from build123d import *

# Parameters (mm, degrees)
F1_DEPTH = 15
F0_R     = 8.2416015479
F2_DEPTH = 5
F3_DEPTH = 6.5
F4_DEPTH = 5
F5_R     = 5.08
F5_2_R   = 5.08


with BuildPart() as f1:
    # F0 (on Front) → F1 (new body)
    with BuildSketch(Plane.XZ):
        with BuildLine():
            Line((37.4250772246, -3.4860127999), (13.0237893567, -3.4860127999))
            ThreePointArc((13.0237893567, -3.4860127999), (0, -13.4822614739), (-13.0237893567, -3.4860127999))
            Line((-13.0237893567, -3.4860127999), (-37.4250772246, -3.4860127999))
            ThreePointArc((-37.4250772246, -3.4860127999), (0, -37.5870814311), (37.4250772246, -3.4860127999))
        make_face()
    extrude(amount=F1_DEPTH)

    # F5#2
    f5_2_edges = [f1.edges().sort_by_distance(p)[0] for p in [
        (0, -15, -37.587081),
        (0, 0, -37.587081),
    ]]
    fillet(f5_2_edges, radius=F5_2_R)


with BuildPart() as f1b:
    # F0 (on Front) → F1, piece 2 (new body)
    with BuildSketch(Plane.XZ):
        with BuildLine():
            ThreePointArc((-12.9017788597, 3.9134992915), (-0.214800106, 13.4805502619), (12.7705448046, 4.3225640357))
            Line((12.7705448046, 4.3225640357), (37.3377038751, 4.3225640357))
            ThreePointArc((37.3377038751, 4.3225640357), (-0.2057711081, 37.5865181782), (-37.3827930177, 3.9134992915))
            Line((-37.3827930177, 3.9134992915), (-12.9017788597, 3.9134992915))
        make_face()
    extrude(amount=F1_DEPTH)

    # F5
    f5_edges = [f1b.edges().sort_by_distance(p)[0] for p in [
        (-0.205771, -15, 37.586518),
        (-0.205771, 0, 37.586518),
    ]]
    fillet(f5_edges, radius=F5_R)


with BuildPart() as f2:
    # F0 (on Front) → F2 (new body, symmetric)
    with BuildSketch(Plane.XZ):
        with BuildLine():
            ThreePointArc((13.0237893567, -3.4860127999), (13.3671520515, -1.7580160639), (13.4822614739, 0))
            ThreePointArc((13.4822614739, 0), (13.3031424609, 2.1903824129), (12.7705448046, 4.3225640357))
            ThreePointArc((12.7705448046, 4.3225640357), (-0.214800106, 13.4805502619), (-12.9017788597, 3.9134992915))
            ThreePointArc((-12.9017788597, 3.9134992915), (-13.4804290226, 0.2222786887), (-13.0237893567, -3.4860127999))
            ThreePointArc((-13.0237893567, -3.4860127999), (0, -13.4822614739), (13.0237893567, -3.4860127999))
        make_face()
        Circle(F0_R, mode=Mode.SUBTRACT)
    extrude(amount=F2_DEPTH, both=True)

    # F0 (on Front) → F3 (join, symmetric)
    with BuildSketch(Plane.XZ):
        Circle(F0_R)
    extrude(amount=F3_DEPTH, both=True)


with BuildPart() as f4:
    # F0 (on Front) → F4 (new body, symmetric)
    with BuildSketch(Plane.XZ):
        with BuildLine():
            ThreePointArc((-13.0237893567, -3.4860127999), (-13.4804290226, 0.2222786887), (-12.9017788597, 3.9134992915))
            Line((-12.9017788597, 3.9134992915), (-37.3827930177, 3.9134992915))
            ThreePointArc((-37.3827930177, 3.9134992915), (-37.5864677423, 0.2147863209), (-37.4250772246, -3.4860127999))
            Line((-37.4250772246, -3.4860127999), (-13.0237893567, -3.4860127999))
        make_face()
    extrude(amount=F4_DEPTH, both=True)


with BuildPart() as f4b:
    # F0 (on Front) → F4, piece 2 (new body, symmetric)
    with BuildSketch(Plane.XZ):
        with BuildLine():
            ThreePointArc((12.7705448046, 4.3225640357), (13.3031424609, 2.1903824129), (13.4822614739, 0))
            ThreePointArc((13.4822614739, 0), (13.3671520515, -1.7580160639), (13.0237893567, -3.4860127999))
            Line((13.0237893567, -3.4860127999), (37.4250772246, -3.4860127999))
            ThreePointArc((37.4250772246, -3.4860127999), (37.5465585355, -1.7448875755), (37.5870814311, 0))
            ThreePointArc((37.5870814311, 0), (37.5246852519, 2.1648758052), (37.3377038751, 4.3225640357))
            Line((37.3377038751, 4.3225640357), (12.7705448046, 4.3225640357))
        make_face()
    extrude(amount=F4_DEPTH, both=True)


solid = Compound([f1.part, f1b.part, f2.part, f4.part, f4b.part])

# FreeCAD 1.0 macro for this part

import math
import FreeCAD as App
import Part
import Sketcher
from FreeCAD import Vector


def edges_at(feature, points):
    """Names of the edges that pass closest to the given points."""
    edges = feature.Shape.Edges
    near = lambda p: min(range(len(edges)), key=lambda i: edges[i].distToShape(Part.Vertex(*p))[0])
    return sorted({f"Edge{near(p) + 1}" for p in points})

doc = App.newDocument("Part")
body = doc.addObject("PartDesign::Body", "Body")

# Sketch on XZ plane
sketch1 = body.newObject("Sketcher::SketchObject", "Sketch")
sketch1.AttachmentSupport = (doc.getObject("XZ_Plane"), [""])
sketch1.MapMode = "FlatFace"
sketch1.addGeometry(Part.LineSegment(Vector(37, -3, 0), Vector(13, -3, 0)), False)
sketch1.addGeometry(Part.ArcOfCircle(Part.Circle(Vector(0, 0, 0), Vector(0, 0, 1), 13), math.radians(-165), math.radians(-15)), False)
sketch1.addGeometry(Part.LineSegment(Vector(-13, -3, 0), Vector(-37, -3, 0)), False)
sketch1.addGeometry(Part.ArcOfCircle(Part.Circle(Vector(0, 0, 0), Vector(0, 0, 1), 38), math.radians(-175), math.radians(-5)), False)
sketch1.addConstraint(Sketcher.Constraint("Coincident", 0, 2, 1, 2))
sketch1.addConstraint(Sketcher.Constraint("Coincident", 1, 1, 2, 1))
sketch1.addConstraint(Sketcher.Constraint("Coincident", 2, 2, 3, 1))
sketch1.addConstraint(Sketcher.Constraint("Coincident", 3, 2, 0, 1))
sketch1.addConstraint(Sketcher.Constraint("Horizontal", 0))
sketch1.addConstraint(Sketcher.Constraint("Horizontal", 2))
sketch1.addConstraint(Sketcher.Constraint("Coincident", 1, 3, -1, 1))
sketch1.addConstraint(Sketcher.Constraint("Coincident", 3, 3, -1, 1))
sketch1.addConstraint(Sketcher.Constraint("Horizontal", 0, 2, 1, 1))
sketch1.addConstraint(Sketcher.Constraint("Radius", 1, 13.482261))
sketch1.addConstraint(Sketcher.Constraint("Radius", 3, 37.587081))
sketch1.addConstraint(Sketcher.Constraint("DistanceX", 0, 2, 0, 1, 24.401288))
pad1 = body.newObject("PartDesign::Pad", "Pad")
pad1.Profile = sketch1
pad1.Length = 15
doc.recompute()

fillet = body.newObject("PartDesign::Fillet", "Fillet")
fillet.Base = (pad1, edges_at(pad1, [(0, -15, -37.587), (0, 0, -37.587)]))
fillet.Radius = 5.08
body2 = doc.addObject("PartDesign::Body", "Body001")

# Sketch on XZ plane
sketch2 = body2.newObject("Sketcher::SketchObject", "Sketch001")
sketch2.AttachmentSupport = (doc.getObject("XZ_Plane001"), [""])
sketch2.MapMode = "FlatFace"
sketch2.addGeometry(Part.ArcOfCircle(Part.Circle(Vector(0, 0, 0), Vector(0, 0, 1), 13), math.radians(19), math.radians(163)), False)
sketch2.addGeometry(Part.LineSegment(Vector(13, 4, 0), Vector(37, 4, 0)), False)
sketch2.addGeometry(Part.ArcOfCircle(Part.Circle(Vector(0, 0, 0), Vector(0, 0, 1), 38), math.radians(7), math.radians(174)), False)
sketch2.addGeometry(Part.LineSegment(Vector(-37, 4, 0), Vector(-13, 4, 0)), False)
sketch2.addConstraint(Sketcher.Constraint("Coincident", 0, 1, 1, 1))
sketch2.addConstraint(Sketcher.Constraint("Coincident", 1, 2, 2, 1))
sketch2.addConstraint(Sketcher.Constraint("Coincident", 2, 2, 3, 1))
sketch2.addConstraint(Sketcher.Constraint("Coincident", 3, 2, 0, 2))
sketch2.addConstraint(Sketcher.Constraint("Horizontal", 1))
sketch2.addConstraint(Sketcher.Constraint("Horizontal", 3))
sketch2.addConstraint(Sketcher.Constraint("Coincident", 0, 3, -1, 1))
sketch2.addConstraint(Sketcher.Constraint("Coincident", 2, 3, -1, 1))
sketch2.addConstraint(Sketcher.Constraint("Radius", 0, 13.482261))
sketch2.addConstraint(Sketcher.Constraint("Radius", 2, 37.587081))
sketch2.addConstraint(Sketcher.Constraint("DistanceX", 1, 1, 1, 2, 24.567159))
sketch2.addConstraint(Sketcher.Constraint("DistanceY", -1, 1, 2, 2, 3.913499))
pad2 = body2.newObject("PartDesign::Pad", "Pad001")
pad2.Profile = sketch2
pad2.Length = 15
doc.recompute()

fillet2 = body2.newObject("PartDesign::Fillet", "Fillet001")
fillet2.Base = (pad2, edges_at(pad2, [(-0.206, -15, 37.587), (-0.206, 0, 37.587)]))
fillet2.Radius = 5.08
body3 = doc.addObject("PartDesign::Body", "Body002")

# Sketch on XZ plane
sketch3 = body3.newObject("Sketcher::SketchObject", "Sketch002")
sketch3.AttachmentSupport = (doc.getObject("XZ_Plane002"), [""])
sketch3.MapMode = "FlatFace"
sketch3.addGeometry(Part.ArcOfCircle(Part.Circle(Vector(0, 0, 0), Vector(0, 0, 1), 13.5), math.radians(-14.98), math.radians(0)), False)
sketch3.addGeometry(Part.ArcOfCircle(Part.Circle(Vector(0, 0, 0), Vector(0, 0, 1), 13.5), math.radians(0), math.radians(18.7)), False)
sketch3.addGeometry(Part.ArcOfCircle(Part.Circle(Vector(0, 0, 0), Vector(0, 0, 1), 13.5), math.radians(19), math.radians(163)), False)
sketch3.addGeometry(Part.ArcOfCircle(Part.Circle(Vector(0, 0, 0), Vector(0, 0, 1), 13.5), math.radians(163), math.radians(195)), False)
sketch3.addGeometry(Part.ArcOfCircle(Part.Circle(Vector(0, 0, 0), Vector(0, 0, 1), 13.5), math.radians(-165), math.radians(-15)), False)
sketch3.addGeometry(Part.Circle(Vector(0, 0, 0), Vector(0, 0, 1), 8.2), False)
sketch3.addConstraint(Sketcher.Constraint("Tangent", 0, 2, 1, 1))
sketch3.addConstraint(Sketcher.Constraint("Tangent", 1, 2, 2, 1))
sketch3.addConstraint(Sketcher.Constraint("Tangent", 2, 2, 3, 1))
sketch3.addConstraint(Sketcher.Constraint("Tangent", 3, 2, 4, 1))
sketch3.addConstraint(Sketcher.Constraint("Tangent", 4, 2, 0, 1))
sketch3.addConstraint(Sketcher.Constraint("Coincident", 0, 3, -1, 1))
sketch3.addConstraint(Sketcher.Constraint("Coincident", 2, 3, -1, 1))
sketch3.addConstraint(Sketcher.Constraint("Coincident", 5, 3, -1, 1))
sketch3.addConstraint(Sketcher.Constraint("PointOnObject", 0, 2, -1))
sketch3.addConstraint(Sketcher.Constraint("Horizontal", 3, 2, 4, 2))
sketch3.addConstraint(Sketcher.Constraint("Radius", 0, 13.482261))
sketch3.addConstraint(Sketcher.Constraint("Diameter", 5, 16.483203))
sketch3.addConstraint(Sketcher.Constraint("DistanceY", -1, 1, 2, 2, 3.913499))
sketch3.addConstraint(Sketcher.Constraint("DistanceX", 3, 2, -1, 1, 13.023789))
sketch3.addConstraint(Sketcher.Constraint("DistanceX", -1, 1, 1, 2, 12.770545))
pad3 = body3.newObject("PartDesign::Pad", "Pad002")
pad3.Profile = sketch3
pad3.Length = 10
pad3.Midplane = True

# Sketch on XZ plane
sketch4 = body3.newObject("Sketcher::SketchObject", "Sketch003")
sketch4.AttachmentSupport = (doc.getObject("XZ_Plane002"), [""])
sketch4.MapMode = "FlatFace"
sketch4.addGeometry(Part.Circle(Vector(0, 0, 0), Vector(0, 0, 1), 8), False)
sketch4.addConstraint(Sketcher.Constraint("Coincident", 0, 3, -1, 1))
sketch4.addConstraint(Sketcher.Constraint("Diameter", 0, 16.483203))
pad4 = body3.newObject("PartDesign::Pad", "Pad003")
pad4.Profile = sketch4
pad4.Length = 13
pad4.Midplane = True
body4 = doc.addObject("PartDesign::Body", "Body003")

# Sketch on XZ plane
sketch5 = body4.newObject("Sketcher::SketchObject", "Sketch004")
sketch5.AttachmentSupport = (doc.getObject("XZ_Plane003"), [""])
sketch5.MapMode = "FlatFace"
sketch5.addGeometry(Part.ArcOfCircle(Part.Circle(Vector(0, 0, 0), Vector(0, 0, 1), 13), math.radians(163), math.radians(195)), False)
sketch5.addGeometry(Part.LineSegment(Vector(-13, 4, 0), Vector(-37, 4, 0)), False)
sketch5.addGeometry(Part.ArcOfCircle(Part.Circle(Vector(0, 0, 0), Vector(0, 0, 1), 38), math.radians(174.02), math.radians(185.32)), False)
sketch5.addGeometry(Part.LineSegment(Vector(-37, -3, 0), Vector(-13, -3, 0)), False)
sketch5.addConstraint(Sketcher.Constraint("Coincident", 0, 1, 1, 1))
sketch5.addConstraint(Sketcher.Constraint("Coincident", 1, 2, 2, 1))
sketch5.addConstraint(Sketcher.Constraint("Coincident", 2, 2, 3, 1))
sketch5.addConstraint(Sketcher.Constraint("Coincident", 3, 2, 0, 2))
sketch5.addConstraint(Sketcher.Constraint("Horizontal", 1))
sketch5.addConstraint(Sketcher.Constraint("Horizontal", 3))
sketch5.addConstraint(Sketcher.Constraint("Coincident", 0, 3, -1, 1))
sketch5.addConstraint(Sketcher.Constraint("Coincident", 2, 3, -1, 1))
sketch5.addConstraint(Sketcher.Constraint("Radius", 0, 13.482261))
sketch5.addConstraint(Sketcher.Constraint("Radius", 2, 37.587081))
sketch5.addConstraint(Sketcher.Constraint("DistanceY", -1, 1, 0, 1, 3.913499))
sketch5.addConstraint(Sketcher.Constraint("DistanceX", 2, 2, 0, 1, 24.523298))
pad5 = body4.newObject("PartDesign::Pad", "Pad004")
pad5.Profile = sketch5
pad5.Length = 10
pad5.Midplane = True
body5 = doc.addObject("PartDesign::Body", "Body004")

# Sketch on XZ plane
sketch6 = body5.newObject("Sketcher::SketchObject", "Sketch005")
sketch6.AttachmentSupport = (doc.getObject("XZ_Plane004"), [""])
sketch6.MapMode = "FlatFace"
sketch6.addGeometry(Part.ArcOfCircle(Part.Circle(Vector(0, 0, 0), Vector(0, 0, 1), 13.5), math.radians(0), math.radians(18.7)), False)
sketch6.addGeometry(Part.ArcOfCircle(Part.Circle(Vector(0, 0, 0), Vector(0, 0, 1), 13.5), math.radians(-14.98), math.radians(0)), False)
sketch6.addGeometry(Part.LineSegment(Vector(13, -3.5, 0), Vector(37.4, -3.5, 0)), False)
sketch6.addGeometry(Part.ArcOfCircle(Part.Circle(Vector(0, 0, 0), Vector(0, 0, 1), 37.6), math.radians(-5.32), math.radians(0)), False)
sketch6.addGeometry(Part.ArcOfCircle(Part.Circle(Vector(0, 0, 0), Vector(0, 0, 1), 37.6), math.radians(0), math.radians(6.6)), False)
sketch6.addGeometry(Part.LineSegment(Vector(37.3, 4.3, 0), Vector(12.8, 4.3, 0)), False)
sketch6.addConstraint(Sketcher.Constraint("Tangent", 0, 1, 1, 2))
sketch6.addConstraint(Sketcher.Constraint("Coincident", 1, 1, 2, 1))
sketch6.addConstraint(Sketcher.Constraint("Coincident", 2, 2, 3, 1))
sketch6.addConstraint(Sketcher.Constraint("Tangent", 3, 2, 4, 1))
sketch6.addConstraint(Sketcher.Constraint("Coincident", 4, 2, 5, 1))
sketch6.addConstraint(Sketcher.Constraint("Coincident", 5, 2, 0, 2))
sketch6.addConstraint(Sketcher.Constraint("Horizontal", 2))
sketch6.addConstraint(Sketcher.Constraint("Horizontal", 5))
sketch6.addConstraint(Sketcher.Constraint("Coincident", 0, 3, -1, 1))
sketch6.addConstraint(Sketcher.Constraint("Coincident", 3, 3, -1, 1))
sketch6.addConstraint(Sketcher.Constraint("Equal", 0, 1))
sketch6.addConstraint(Sketcher.Constraint("Equal", 3, 4))
sketch6.addConstraint(Sketcher.Constraint("PointOnObject", 0, 1, -1))
sketch6.addConstraint(Sketcher.Constraint("PointOnObject", 3, 2, -1))
sketch6.addConstraint(Sketcher.Constraint("Radius", 0, 13.482261))
sketch6.addConstraint(Sketcher.Constraint("Radius", 3, 37.587081))
sketch6.addConstraint(Sketcher.Constraint("DistanceX", 5, 2, 5, 1, 24.567159))
sketch6.addConstraint(Sketcher.Constraint("DistanceX", 2, 1, 2, 2, 24.401288))
pad6 = body5.newObject("PartDesign::Pad", "Pad005")
pad6.Profile = sketch6
pad6.Length = 10
pad6.Midplane = True

doc.recompute()
